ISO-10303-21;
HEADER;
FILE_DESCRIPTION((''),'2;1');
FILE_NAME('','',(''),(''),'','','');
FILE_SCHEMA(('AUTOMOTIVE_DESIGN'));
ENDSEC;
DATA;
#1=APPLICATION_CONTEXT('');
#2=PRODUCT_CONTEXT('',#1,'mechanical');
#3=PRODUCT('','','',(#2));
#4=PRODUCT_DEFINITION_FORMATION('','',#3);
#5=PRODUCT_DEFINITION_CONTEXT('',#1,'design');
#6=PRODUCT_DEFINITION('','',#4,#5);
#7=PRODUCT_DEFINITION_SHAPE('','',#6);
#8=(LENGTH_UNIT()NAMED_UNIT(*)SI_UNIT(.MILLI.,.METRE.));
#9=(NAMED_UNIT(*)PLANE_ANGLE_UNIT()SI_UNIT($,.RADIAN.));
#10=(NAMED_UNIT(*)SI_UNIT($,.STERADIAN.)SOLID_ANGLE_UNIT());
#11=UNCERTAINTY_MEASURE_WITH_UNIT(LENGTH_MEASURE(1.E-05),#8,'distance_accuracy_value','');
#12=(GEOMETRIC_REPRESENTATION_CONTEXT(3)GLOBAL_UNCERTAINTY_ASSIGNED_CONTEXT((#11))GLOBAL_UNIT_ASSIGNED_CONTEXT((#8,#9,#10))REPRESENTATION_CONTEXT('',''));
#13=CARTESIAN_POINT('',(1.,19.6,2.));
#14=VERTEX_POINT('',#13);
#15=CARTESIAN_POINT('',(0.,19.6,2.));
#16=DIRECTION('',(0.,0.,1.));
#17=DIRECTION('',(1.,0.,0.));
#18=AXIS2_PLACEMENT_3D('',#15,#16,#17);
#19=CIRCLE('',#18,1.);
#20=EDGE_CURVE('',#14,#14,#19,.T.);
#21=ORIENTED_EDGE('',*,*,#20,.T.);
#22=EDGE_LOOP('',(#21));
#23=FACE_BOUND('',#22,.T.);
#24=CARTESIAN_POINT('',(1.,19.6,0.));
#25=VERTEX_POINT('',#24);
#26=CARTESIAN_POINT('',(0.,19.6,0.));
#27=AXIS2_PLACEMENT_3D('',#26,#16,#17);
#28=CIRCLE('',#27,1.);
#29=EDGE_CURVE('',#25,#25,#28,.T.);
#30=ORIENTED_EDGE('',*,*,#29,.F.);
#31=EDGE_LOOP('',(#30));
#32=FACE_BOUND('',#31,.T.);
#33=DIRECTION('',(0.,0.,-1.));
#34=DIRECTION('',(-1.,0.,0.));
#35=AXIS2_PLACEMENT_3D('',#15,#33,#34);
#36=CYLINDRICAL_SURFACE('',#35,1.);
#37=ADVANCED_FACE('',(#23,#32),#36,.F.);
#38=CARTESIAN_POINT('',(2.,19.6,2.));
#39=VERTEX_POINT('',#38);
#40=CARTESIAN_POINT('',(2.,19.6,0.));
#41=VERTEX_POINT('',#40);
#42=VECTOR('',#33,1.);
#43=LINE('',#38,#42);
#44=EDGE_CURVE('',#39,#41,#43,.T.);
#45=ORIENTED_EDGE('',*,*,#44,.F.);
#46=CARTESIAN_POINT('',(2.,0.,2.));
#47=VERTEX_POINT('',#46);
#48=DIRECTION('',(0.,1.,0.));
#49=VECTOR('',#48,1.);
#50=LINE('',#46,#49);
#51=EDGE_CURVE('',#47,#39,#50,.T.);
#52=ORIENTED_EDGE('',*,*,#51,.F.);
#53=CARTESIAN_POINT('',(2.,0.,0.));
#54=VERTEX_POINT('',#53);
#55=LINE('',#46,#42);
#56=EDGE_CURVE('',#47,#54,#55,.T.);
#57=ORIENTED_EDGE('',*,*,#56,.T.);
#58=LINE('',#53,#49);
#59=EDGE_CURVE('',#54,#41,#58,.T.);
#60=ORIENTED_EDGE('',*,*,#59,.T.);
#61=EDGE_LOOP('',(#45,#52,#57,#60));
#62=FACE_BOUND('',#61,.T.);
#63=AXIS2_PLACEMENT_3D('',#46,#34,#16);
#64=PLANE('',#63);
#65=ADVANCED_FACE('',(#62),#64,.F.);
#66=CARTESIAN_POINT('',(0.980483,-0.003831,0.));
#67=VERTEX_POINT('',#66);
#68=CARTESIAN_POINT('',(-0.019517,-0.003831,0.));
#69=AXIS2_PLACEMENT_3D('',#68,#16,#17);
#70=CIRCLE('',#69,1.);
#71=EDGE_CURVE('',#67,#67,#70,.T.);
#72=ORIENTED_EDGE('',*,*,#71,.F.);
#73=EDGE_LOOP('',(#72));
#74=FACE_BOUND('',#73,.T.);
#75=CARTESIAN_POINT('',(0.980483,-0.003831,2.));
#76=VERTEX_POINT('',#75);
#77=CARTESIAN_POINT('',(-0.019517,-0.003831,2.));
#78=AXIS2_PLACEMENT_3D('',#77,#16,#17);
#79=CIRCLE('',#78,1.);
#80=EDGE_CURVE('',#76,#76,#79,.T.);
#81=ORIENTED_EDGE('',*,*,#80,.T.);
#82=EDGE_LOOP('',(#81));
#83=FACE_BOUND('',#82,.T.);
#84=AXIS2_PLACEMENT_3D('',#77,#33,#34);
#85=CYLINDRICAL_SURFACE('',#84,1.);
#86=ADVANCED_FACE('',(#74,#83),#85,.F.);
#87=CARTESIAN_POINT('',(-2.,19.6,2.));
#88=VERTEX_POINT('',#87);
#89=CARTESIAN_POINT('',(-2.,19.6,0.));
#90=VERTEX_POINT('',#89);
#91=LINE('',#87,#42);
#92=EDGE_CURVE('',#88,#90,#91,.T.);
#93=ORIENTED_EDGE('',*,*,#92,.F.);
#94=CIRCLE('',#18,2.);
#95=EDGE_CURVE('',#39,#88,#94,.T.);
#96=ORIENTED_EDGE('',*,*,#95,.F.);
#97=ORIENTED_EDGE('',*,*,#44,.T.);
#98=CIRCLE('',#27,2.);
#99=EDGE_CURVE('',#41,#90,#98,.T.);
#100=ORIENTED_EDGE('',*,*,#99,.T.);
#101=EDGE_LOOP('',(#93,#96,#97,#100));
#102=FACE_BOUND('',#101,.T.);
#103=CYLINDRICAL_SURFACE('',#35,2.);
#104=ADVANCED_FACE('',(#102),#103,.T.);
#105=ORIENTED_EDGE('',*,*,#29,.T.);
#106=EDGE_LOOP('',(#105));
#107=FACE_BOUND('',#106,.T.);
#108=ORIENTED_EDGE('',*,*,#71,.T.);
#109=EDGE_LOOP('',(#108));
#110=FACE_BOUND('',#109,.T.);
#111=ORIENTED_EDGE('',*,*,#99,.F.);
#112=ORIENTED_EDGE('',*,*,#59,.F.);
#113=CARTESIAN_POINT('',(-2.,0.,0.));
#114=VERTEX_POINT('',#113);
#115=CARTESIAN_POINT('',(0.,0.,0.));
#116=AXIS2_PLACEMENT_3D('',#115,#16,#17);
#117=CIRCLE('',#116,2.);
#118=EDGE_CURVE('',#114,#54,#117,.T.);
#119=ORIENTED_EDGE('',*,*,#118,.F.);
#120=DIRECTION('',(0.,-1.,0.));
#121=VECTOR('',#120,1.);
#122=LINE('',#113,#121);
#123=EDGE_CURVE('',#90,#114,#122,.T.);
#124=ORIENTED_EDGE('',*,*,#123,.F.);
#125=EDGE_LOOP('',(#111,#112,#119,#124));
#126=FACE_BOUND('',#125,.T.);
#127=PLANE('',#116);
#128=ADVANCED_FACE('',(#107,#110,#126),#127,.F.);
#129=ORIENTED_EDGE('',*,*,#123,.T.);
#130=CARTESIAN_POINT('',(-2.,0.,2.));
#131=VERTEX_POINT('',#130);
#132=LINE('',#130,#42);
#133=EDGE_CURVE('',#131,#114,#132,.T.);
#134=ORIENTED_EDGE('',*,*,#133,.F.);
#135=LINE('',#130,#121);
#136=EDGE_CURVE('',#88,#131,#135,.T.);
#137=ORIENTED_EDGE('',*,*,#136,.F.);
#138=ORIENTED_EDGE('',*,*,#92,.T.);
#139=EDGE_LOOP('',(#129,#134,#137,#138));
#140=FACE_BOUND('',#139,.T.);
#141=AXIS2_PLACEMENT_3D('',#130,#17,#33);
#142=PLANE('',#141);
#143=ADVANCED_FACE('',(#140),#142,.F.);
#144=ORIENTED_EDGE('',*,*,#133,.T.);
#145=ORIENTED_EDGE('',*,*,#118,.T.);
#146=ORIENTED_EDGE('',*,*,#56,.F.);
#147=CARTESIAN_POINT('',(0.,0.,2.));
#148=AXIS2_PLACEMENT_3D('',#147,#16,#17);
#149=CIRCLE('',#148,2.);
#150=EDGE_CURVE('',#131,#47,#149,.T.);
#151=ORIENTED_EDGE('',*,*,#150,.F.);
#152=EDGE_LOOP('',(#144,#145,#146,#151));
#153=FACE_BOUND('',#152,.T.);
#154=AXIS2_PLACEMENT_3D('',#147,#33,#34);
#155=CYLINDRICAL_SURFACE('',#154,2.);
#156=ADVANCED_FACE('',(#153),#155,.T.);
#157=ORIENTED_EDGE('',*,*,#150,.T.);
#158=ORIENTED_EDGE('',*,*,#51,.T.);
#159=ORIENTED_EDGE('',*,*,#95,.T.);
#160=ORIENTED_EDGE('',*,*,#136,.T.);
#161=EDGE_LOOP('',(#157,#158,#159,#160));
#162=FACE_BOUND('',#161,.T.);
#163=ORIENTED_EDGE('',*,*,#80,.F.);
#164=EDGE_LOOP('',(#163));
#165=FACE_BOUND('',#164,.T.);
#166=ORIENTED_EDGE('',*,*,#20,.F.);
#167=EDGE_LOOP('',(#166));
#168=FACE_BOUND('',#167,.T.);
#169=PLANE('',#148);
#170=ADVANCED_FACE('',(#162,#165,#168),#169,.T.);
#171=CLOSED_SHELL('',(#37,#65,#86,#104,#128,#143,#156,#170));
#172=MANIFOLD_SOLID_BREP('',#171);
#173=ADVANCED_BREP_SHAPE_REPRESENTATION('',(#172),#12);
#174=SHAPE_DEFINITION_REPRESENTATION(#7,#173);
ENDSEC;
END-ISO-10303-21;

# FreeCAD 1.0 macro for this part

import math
import FreeCAD as App
import Part
import Sketcher

doc = App.newDocument("Part")
body = doc.addObject("PartDesign::Body", "Body")

# Sketch on XY plane
sketch1 = doc.addObject("Sketcher::SketchObject", "Sketch")
body.addObject(sketch1)
sketch1.AttachmentSupport = (doc.XY_Plane, [""])
sketch1.MapMode = "FlatFace"
sketch1.addGeometry(Part.LineSegment(App.Vector(-2, 19.6, 0), App.Vector(-2, 0, 0)), False)
sketch1.addGeometry(Part.ArcOfCircle(Part.Circle(App.Vector(0, 0, 0), App.Vector(0, 0, 1), 2), math.radians(180), math.radians(360)), False)
sketch1.addGeometry(Part.LineSegment(App.Vector(2, 0, 0), App.Vector(2, 19.6, 0)), False)
sketch1.addGeometry(Part.ArcOfCircle(Part.Circle(App.Vector(0, 19.6, 0), App.Vector(0, 0, 1), 2), math.radians(0), math.radians(180)), False)
sketch1.addGeometry(Part.Circle(App.Vector(0, 0, 0), App.Vector(0, 0, 1), 1), False)
sketch1.addGeometry(Part.Circle(App.Vector(0, 19.6, 0), App.Vector(0, 0, 1), 1), False)
sketch1.addConstraint(Sketcher.Constraint("Tangent", 0, 2, 1, 1))
sketch1.addConstraint(Sketcher.Constraint("Tangent", 1, 2, 2, 1))
sketch1.addConstraint(Sketcher.Constraint("Tangent", 2, 2, 3, 1))
sketch1.addConstraint(Sketcher.Constraint("Tangent", 3, 2, 0, 1))
sketch1.addConstraint(Sketcher.Constraint("Vertical", 0))
sketch1.addConstraint(Sketcher.Constraint("Vertical", 2))
sketch1.addConstraint(Sketcher.Constraint("Coincident", 1, 3, -1, 1))
sketch1.addConstraint(Sketcher.Constraint("Coincident", 5, 3, 3, 3))
sketch1.addConstraint(Sketcher.Constraint("Equal", 4, 5))
sketch1.addConstraint(Sketcher.Constraint("Diameter", 4, 2.0))
sketch1.addConstraint(Sketcher.Constraint("Radius", 1, 2.0))
sketch1.addConstraint(Sketcher.Constraint("DistanceY", 0, 2, 0, 1, 19.6))
sketch1.addConstraint(Sketcher.Constraint("DistanceY", 4, 3, -1, 1, 0.003831))
sketch1.addConstraint(Sketcher.Constraint("DistanceX", 4, 3, -1, 1, 0.019517))
pad1 = doc.addObject("PartDesign::Pad", "Pad")
body.addObject(pad1)
pad1.Profile = sketch1
pad1.Length = 2

doc.recompute()
